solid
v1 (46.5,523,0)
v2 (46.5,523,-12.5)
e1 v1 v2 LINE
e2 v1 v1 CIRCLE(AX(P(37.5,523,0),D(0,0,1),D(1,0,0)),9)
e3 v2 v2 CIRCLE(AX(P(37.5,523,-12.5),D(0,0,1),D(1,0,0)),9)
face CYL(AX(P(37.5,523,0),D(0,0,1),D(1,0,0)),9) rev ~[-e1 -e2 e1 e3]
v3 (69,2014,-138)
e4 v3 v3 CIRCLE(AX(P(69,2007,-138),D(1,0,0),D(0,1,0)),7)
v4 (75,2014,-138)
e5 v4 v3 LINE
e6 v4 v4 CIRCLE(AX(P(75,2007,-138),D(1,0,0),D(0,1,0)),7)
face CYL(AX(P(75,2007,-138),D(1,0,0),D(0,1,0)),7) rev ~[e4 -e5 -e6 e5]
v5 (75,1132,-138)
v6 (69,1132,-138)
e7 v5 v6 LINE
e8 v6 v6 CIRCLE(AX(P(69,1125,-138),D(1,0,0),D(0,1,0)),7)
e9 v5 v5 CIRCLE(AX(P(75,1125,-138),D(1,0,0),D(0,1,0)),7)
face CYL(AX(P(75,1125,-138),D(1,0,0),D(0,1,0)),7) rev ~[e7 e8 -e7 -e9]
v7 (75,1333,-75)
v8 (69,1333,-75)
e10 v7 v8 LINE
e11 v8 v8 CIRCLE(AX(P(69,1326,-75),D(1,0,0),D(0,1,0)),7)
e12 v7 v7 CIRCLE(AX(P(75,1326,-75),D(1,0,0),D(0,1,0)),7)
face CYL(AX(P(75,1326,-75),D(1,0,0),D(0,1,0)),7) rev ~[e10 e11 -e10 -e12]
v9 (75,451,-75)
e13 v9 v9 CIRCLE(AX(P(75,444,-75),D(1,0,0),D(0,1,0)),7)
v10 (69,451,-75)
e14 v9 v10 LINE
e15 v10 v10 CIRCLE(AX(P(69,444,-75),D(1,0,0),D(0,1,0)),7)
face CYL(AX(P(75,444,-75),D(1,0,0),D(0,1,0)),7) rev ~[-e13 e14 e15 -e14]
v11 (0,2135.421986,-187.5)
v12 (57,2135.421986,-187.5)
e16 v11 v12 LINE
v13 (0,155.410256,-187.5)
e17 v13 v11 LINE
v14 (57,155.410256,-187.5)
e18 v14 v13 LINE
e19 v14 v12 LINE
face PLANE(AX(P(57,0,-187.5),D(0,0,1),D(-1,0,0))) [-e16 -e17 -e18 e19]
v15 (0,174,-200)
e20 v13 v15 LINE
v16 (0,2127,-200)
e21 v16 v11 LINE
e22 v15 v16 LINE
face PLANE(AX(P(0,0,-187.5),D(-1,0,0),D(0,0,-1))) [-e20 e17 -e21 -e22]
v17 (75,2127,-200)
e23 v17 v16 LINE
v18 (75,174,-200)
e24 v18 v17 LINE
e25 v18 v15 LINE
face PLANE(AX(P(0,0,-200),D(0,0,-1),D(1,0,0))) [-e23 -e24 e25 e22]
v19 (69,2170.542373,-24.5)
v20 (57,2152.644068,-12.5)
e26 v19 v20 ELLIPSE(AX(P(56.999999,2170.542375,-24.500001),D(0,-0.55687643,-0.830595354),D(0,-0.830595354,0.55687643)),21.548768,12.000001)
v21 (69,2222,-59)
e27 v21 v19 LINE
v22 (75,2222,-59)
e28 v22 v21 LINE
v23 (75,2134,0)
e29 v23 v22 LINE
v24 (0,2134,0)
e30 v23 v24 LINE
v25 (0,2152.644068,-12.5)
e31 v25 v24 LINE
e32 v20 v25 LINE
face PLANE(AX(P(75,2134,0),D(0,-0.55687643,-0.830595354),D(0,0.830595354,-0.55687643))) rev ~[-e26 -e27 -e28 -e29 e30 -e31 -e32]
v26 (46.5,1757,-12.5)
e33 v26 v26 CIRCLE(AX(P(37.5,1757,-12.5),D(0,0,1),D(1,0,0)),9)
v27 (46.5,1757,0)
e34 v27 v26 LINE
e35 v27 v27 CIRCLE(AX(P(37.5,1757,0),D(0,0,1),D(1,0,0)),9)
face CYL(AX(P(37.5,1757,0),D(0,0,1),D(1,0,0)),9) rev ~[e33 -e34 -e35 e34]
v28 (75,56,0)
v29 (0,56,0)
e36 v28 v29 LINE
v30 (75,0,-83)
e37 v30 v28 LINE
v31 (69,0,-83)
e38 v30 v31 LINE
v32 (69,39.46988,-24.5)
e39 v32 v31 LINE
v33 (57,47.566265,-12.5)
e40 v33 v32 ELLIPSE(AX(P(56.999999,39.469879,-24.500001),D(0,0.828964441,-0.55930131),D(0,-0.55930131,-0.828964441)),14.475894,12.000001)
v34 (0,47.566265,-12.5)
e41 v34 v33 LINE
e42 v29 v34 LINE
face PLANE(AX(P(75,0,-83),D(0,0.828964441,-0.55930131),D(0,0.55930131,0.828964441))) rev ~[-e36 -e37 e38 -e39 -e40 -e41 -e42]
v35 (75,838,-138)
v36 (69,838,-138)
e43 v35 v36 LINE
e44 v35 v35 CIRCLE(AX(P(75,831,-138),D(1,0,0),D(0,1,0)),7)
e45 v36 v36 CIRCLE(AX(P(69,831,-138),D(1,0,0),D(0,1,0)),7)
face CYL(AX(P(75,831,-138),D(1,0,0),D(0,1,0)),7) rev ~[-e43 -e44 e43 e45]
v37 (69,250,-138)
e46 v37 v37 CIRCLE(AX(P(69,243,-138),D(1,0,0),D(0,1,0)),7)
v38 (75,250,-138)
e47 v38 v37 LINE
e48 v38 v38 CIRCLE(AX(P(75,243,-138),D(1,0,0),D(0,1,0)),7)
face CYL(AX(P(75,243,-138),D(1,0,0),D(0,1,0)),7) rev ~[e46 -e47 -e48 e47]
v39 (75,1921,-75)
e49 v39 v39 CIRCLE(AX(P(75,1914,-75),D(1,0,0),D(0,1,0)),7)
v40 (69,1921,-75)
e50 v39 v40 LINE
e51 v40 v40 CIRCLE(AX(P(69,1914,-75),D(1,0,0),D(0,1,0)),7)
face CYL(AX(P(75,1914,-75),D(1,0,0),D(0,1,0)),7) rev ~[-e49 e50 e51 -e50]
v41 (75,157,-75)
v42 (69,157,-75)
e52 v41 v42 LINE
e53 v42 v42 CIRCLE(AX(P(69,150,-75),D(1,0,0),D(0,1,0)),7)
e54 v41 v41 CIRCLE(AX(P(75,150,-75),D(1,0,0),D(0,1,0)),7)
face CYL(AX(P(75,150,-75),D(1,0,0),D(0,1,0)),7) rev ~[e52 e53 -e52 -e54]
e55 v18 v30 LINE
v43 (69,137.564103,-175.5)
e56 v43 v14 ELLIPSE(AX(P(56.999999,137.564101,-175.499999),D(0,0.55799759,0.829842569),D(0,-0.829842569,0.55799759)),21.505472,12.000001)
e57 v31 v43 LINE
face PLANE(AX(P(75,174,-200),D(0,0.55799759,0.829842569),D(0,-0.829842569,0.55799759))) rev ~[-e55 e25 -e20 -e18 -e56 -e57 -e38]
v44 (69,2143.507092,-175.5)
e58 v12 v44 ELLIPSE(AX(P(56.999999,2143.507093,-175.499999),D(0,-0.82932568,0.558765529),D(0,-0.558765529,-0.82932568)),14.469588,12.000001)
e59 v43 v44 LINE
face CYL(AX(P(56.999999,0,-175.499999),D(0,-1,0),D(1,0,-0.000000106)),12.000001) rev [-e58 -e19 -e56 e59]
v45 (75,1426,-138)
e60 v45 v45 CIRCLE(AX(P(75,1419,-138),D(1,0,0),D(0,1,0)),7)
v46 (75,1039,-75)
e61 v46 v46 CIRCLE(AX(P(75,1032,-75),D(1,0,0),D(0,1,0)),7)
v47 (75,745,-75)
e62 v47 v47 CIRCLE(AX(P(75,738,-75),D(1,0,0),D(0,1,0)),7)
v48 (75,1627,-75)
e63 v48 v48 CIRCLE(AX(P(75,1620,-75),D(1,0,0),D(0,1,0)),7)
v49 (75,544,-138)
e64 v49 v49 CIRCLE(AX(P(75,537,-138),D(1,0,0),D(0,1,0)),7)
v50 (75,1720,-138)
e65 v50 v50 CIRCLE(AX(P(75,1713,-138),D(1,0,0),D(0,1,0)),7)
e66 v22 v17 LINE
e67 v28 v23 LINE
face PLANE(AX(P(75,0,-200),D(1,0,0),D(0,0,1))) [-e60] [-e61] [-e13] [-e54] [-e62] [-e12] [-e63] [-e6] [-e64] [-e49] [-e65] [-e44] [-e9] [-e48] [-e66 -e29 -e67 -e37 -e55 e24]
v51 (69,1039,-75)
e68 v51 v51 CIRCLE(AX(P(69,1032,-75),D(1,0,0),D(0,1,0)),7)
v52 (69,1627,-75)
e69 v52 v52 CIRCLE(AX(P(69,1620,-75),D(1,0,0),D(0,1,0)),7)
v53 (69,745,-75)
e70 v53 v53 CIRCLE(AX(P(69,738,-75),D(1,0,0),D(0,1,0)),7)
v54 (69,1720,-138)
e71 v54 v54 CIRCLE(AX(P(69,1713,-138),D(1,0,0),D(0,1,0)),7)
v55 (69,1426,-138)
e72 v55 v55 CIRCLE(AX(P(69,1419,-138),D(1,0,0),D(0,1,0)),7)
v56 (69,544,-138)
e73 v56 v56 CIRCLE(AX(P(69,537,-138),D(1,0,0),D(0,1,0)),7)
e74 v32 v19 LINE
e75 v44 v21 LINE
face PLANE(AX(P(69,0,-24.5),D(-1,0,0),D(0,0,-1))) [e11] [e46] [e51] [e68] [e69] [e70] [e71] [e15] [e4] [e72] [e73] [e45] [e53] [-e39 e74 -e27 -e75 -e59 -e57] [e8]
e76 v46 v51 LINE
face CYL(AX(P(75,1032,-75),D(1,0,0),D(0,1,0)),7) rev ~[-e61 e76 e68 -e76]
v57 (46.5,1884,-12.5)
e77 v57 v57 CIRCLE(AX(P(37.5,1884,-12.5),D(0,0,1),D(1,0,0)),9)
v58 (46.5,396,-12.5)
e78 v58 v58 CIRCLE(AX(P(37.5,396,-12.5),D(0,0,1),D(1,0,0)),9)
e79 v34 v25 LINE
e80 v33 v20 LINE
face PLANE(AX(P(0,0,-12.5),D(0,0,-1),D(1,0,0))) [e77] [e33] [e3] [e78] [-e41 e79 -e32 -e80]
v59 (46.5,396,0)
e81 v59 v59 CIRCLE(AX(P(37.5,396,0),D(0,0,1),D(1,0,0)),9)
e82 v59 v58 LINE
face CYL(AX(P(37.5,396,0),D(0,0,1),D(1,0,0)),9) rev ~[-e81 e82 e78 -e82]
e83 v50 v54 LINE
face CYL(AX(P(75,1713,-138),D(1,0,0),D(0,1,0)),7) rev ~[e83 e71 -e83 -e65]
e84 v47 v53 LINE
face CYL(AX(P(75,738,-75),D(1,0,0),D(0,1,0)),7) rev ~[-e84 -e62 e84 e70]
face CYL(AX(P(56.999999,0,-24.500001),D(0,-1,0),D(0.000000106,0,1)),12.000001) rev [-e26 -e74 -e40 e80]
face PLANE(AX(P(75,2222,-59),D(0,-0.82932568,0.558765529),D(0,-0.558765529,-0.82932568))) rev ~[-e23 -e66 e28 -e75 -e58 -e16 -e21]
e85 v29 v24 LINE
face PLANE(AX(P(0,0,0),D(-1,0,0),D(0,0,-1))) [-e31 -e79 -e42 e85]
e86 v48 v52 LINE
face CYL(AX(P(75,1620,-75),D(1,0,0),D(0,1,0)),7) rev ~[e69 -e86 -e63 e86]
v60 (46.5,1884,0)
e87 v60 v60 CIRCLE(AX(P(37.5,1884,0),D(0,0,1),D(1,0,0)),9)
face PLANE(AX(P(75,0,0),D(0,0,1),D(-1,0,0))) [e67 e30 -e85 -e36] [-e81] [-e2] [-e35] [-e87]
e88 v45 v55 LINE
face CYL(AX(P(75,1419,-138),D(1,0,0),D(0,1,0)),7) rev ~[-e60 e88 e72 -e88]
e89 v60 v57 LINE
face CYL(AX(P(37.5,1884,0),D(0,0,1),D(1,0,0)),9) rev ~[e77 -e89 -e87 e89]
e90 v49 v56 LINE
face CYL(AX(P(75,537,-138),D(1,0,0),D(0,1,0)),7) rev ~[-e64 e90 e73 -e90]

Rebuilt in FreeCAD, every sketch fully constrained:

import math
import FreeCAD as App
import Part
import Sketcher
Q = App.Units.Quantity


def add_polygon(sketch, points):
    """Adds a closed chain of lines whose ends are joined by coincident constraints."""
    first, n = sketch.GeometryCount, len(points)
    for a, b in zip(points, points[1:] + points[:1]):
        sketch.addGeometry(Part.LineSegment(App.Vector(*a, 0), App.Vector(*b, 0)), False)
    for i in range(n):
        sketch.addConstraint(Sketcher.Constraint("Coincident", first + i, 2, first + (i + 1) % n, 1))

doc = App.newDocument("Part")
body = doc.addObject("PartDesign::Body", "Body")

# Sketch on XZ plane
sketch1 = body.newObject("Sketcher::SketchObject", "Sketch")
sketch1.AttachmentSupport = (doc.getObject("XZ_Plane"), [""])
sketch1.MapMode = "FlatFace"
sketch1.addGeometry(Part.LineSegment(App.Vector(75, 0, 0), App.Vector(0, 0, 0)), False)
sketch1.addGeometry(Part.LineSegment(App.Vector(0, 0, 0), App.Vector(0, -12.5, 0)), False)
sketch1.addGeometry(Part.LineSegment(App.Vector(0, -12.5, 0), App.Vector(57, -12.5, 0)), False)
sketch1.addGeometry(Part.ArcOfCircle(Part.Circle(App.Vector(56.999999, -24.500001, 0), App.Vector(0, 0, 1), 12.000001), math.radians(0.000006), math.radians(89.999994)), False)
sketch1.addGeometry(Part.LineSegment(App.Vector(69, -24.5, 0), App.Vector(69, -175.5, 0)), False)
sketch1.addGeometry(Part.ArcOfCircle(Part.Circle(App.Vector(56.999999, -175.499999, 0), App.Vector(0, 0, 1), 12.000001), math.radians(-89.999994), math.radians(-0.000006)), False)
sketch1.addGeometry(Part.LineSegment(App.Vector(57, -187.5, 0), App.Vector(0, -187.5, 0)), False)
sketch1.addGeometry(Part.LineSegment(App.Vector(0, -187.5, 0), App.Vector(0, -200, 0)), False)
sketch1.addGeometry(Part.LineSegment(App.Vector(0, -200, 0), App.Vector(75, -200, 0)), False)
sketch1.addGeometry(Part.LineSegment(App.Vector(75, -200, 0), App.Vector(75, 0, 0)), False)
sketch1.addConstraint(Sketcher.Constraint("Coincident", 0, 2, 1, 1))
sketch1.addConstraint(Sketcher.Constraint("Coincident", 1, 2, 2, 1))
sketch1.addConstraint(Sketcher.Constraint("Tangent", 2, 2, 3, 2))
sketch1.addConstraint(Sketcher.Constraint("Tangent", 3, 1, 4, 1))
sketch1.addConstraint(Sketcher.Constraint("Tangent", 4, 2, 5, 2))
sketch1.addConstraint(Sketcher.Constraint("Tangent", 5, 1, 6, 1))
sketch1.addConstraint(Sketcher.Constraint("Coincident", 6, 2, 7, 1))
sketch1.addConstraint(Sketcher.Constraint("Coincident", 7, 2, 8, 1))
sketch1.addConstraint(Sketcher.Constraint("Coincident", 8, 2, 9, 1))
sketch1.addConstraint(Sketcher.Constraint("Coincident", 9, 2, 0, 1))
sketch1.addConstraint(Sketcher.Constraint("Horizontal", 0))
sketch1.addConstraint(Sketcher.Constraint("Vertical", 1))
sketch1.addConstraint(Sketcher.Constraint("Horizontal", 2))
sketch1.addConstraint(Sketcher.Constraint("Vertical", 4))
sketch1.addConstraint(Sketcher.Constraint("Horizontal", 6))
sketch1.addConstraint(Sketcher.Constraint("Vertical", 7))
sketch1.addConstraint(Sketcher.Constraint("Horizontal", 8))
sketch1.addConstraint(Sketcher.Constraint("Vertical", 9))
sketch1.addConstraint(Sketcher.Constraint("Coincident", 0, 2, -1, 1))
sketch1.addConstraint(Sketcher.Constraint("Equal", 3, 5))
sketch1.addConstraint(Sketcher.Constraint("PointOnObject", 6, 2, -2))
sketch1.addConstraint(Sketcher.Constraint("Equal", 1, 7))
sketch1.addConstraint(Sketcher.Constraint("Radius", 3, Q("12.000001 mm")))
sketch1.addConstraint(Sketcher.Constraint("DistanceX", 0, 2, 0, 1, Q("75 mm")))
sketch1.addConstraint(Sketcher.Constraint("DistanceX", 2, 1, 2, 2, Q("57 mm")))
sketch1.addConstraint(Sketcher.Constraint("DistanceY", 4, 2, 4, 1, Q("151 mm")))
sketch1.addConstraint(Sketcher.Constraint("DistanceY", 9, 1, 9, 2, Q("200 mm")))
pad1 = body.newObject("PartDesign::Pad", "Pad")
pad1.Profile = sketch1
pad1.Length = 2222
pad1.Reversed = True

# Sketch on YZ plane
sketch2 = body.newObject("Sketcher::SketchObject", "Sketch001")
sketch2.AttachmentSupport = (doc.getObject("YZ_Plane"), [""])
sketch2.MapMode = "FlatFace"
sketch2.AttachmentOffset = App.Placement(App.Vector(0, 0, 75), App.Rotation())
add_polygon(sketch2, [(174, -200), (0, -83), (0, -200)])  # lines 0-2
add_polygon(sketch2, [(56, 0), (0, 0), (0, -83)])  # lines 3-5
add_polygon(sketch2, [(2222, -59), (2127, -200), (2222, -200)])  # lines 6-8
add_polygon(sketch2, [(2134, 0), (2222, -59), (2222, 0)])  # lines 9-11
sketch2.addGeometry(Part.Circle(App.Vector(444, -75, 0), App.Vector(0, 0, 1), 7), False)  # 12
sketch2.addGeometry(Part.Circle(App.Vector(537, -138, 0), App.Vector(0, 0, 1), 7), False)  # 13
sketch2.addGeometry(Part.Circle(App.Vector(243, -138, 0), App.Vector(0, 0, 1), 7), False)  # 14
sketch2.addGeometry(Part.Circle(App.Vector(150, -75, 0), App.Vector(0, 0, 1), 7), False)  # 15
sketch2.addGeometry(Part.Circle(App.Vector(738, -75, 0), App.Vector(0, 0, 1), 7), False)  # 16
sketch2.addGeometry(Part.Circle(App.Vector(831, -138, 0), App.Vector(0, 0, 1), 7), False)  # 17
sketch2.addGeometry(Part.Circle(App.Vector(1032, -75, 0), App.Vector(0, 0, 1), 7), False)  # 18
sketch2.addGeometry(Part.Circle(App.Vector(1125, -138, 0), App.Vector(0, 0, 1), 7), False)  # 19
sketch2.addGeometry(Part.Circle(App.Vector(1326, -75, 0), App.Vector(0, 0, 1), 7), False)  # 20
sketch2.addGeometry(Part.Circle(App.Vector(1419, -138, 0), App.Vector(0, 0, 1), 7), False)  # 21
sketch2.addGeometry(Part.Circle(App.Vector(1620, -75, 0), App.Vector(0, 0, 1), 7), False)  # 22
sketch2.addGeometry(Part.Circle(App.Vector(1713, -138, 0), App.Vector(0, 0, 1), 7), False)  # 23
sketch2.addGeometry(Part.Circle(App.Vector(2007, -138, 0), App.Vector(0, 0, 1), 7), False)  # 24
sketch2.addGeometry(Part.Circle(App.Vector(1914, -75, 0), App.Vector(0, 0, 1), 7), False)  # 25
sketch2.addConstraint(Sketcher.Constraint("Vertical", 1))
sketch2.addConstraint(Sketcher.Constraint("Horizontal", 2))
sketch2.addConstraint(Sketcher.Constraint("Horizontal", 3))
sketch2.addConstraint(Sketcher.Constraint("Vertical", 4))
sketch2.addConstraint(Sketcher.Constraint("Horizontal", 7))
sketch2.addConstraint(Sketcher.Constraint("Vertical", 8))
sketch2.addConstraint(Sketcher.Constraint("Vertical", 10))
sketch2.addConstraint(Sketcher.Constraint("Horizontal", 11))
sketch2.addConstraint(Sketcher.Constraint("Coincident", 3, 2, -1, 1))
sketch2.addConstraint(Sketcher.Constraint("Coincident", 4, 2, 0, 2))
sketch2.addConstraint(Sketcher.Constraint("Coincident", 9, 2, 8, 2))
sketch2.addConstraint(Sketcher.Constraint("Equal", 12, 13))
sketch2.addConstraint(Sketcher.Constraint("Equal", 13, 14))
sketch2.addConstraint(Sketcher.Constraint("Equal", 14, 15))
sketch2.addConstraint(Sketcher.Constraint("Equal", 15, 16))
sketch2.addConstraint(Sketcher.Constraint("Equal", 16, 17))
sketch2.addConstraint(Sketcher.Constraint("Equal", 17, 18))
sketch2.addConstraint(Sketcher.Constraint("Equal", 18, 19))
sketch2.addConstraint(Sketcher.Constraint("Equal", 19, 20))
sketch2.addConstraint(Sketcher.Constraint("Equal", 20, 21))
sketch2.addConstraint(Sketcher.Constraint("Equal", 21, 22))
sketch2.addConstraint(Sketcher.Constraint("Equal", 22, 23))
sketch2.addConstraint(Sketcher.Constraint("Equal", 23, 24))
sketch2.addConstraint(Sketcher.Constraint("Equal", 24, 25))
sketch2.addConstraint(Sketcher.Constraint("PointOnObject", 10, 2, -1))
sketch2.addConstraint(Sketcher.Constraint("Horizontal", 13, 3, 14, 3))
sketch2.addConstraint(Sketcher.Constraint("Horizontal", 12, 3, 15, 3))
sketch2.addConstraint(Sketcher.Constraint("Horizontal", 15, 3, 16, 3))
sketch2.addConstraint(Sketcher.Constraint("Horizontal", 14, 3, 17, 3))
sketch2.addConstraint(Sketcher.Constraint("Horizontal", 16, 3, 18, 3))
sketch2.addConstraint(Sketcher.Constraint("Horizontal", 17, 3, 19, 3))
sketch2.addConstraint(Sketcher.Constraint("Horizontal", 18, 3, 20, 3))
sketch2.addConstraint(Sketcher.Constraint("Horizontal", 19, 3, 21, 3))
sketch2.addConstraint(Sketcher.Constraint("Horizontal", 20, 3, 22, 3))
sketch2.addConstraint(Sketcher.Constraint("Horizontal", 21, 3, 23, 3))
sketch2.addConstraint(Sketcher.Constraint("Horizontal", 23, 3, 24, 3))
sketch2.addConstraint(Sketcher.Constraint("Horizontal", 22, 3, 25, 3))
sketch2.addConstraint(Sketcher.Constraint("Horizontal", 2, 2, 6, 2))
sketch2.addConstraint(Sketcher.Constraint("Diameter", 12, Q("14 mm")))
sketch2.addConstraint(Sketcher.Constraint("DistanceX", 2, 1, 2, 2, Q("174 mm")))
sketch2.addConstraint(Sketcher.Constraint("DistanceX", 3, 2, 3, 1, Q("56 mm")))
sketch2.addConstraint(Sketcher.Constraint("DistanceX", 7, 1, 7, 2, Q("95 mm")))
sketch2.addConstraint(Sketcher.Constraint("DistanceX", 11, 2, 11, 1, Q("88 mm")))
sketch2.addConstraint(Sketcher.Constraint("DistanceY", 1, 2, 1, 1, Q("117 mm")))
sketch2.addConstraint(Sketcher.Constraint("DistanceY", 4, 2, 4, 1, Q("83 mm")))
sketch2.addConstraint(Sketcher.Constraint("DistanceY", 8, 1, 8, 2, Q("141 mm")))
sketch2.addConstraint(Sketcher.Constraint("DistanceX", -1, 1, 12, 3, Q("444 mm")))
sketch2.addConstraint(Sketcher.Constraint("DistanceY", 12, 3, -1, 1, Q("75 mm")))
sketch2.addConstraint(Sketcher.Constraint("DistanceX", -1, 1, 13, 3, Q("537 mm")))
sketch2.addConstraint(Sketcher.Constraint("DistanceY", 13, 3, -1, 1, Q("138 mm")))
sketch2.addConstraint(Sketcher.Constraint("DistanceX", -1, 1, 14, 3, Q("243 mm")))
sketch2.addConstraint(Sketcher.Constraint("DistanceX", -1, 1, 15, 3, Q("150 mm")))
sketch2.addConstraint(Sketcher.Constraint("DistanceX", -1, 1, 16, 3, Q("738 mm")))
sketch2.addConstraint(Sketcher.Constraint("DistanceX", -1, 1, 17, 3, Q("831 mm")))
sketch2.addConstraint(Sketcher.Constraint("DistanceX", -1, 1, 18, 3, Q("1032 mm")))
sketch2.addConstraint(Sketcher.Constraint("DistanceX", -1, 1, 19, 3, Q("1125 mm")))
sketch2.addConstraint(Sketcher.Constraint("DistanceX", -1, 1, 20, 3, Q("1326 mm")))
sketch2.addConstraint(Sketcher.Constraint("DistanceX", -1, 1, 21, 3, Q("1419 mm")))
sketch2.addConstraint(Sketcher.Constraint("DistanceX", -1, 1, 22, 3, Q("1620 mm")))
sketch2.addConstraint(Sketcher.Constraint("DistanceX", -1, 1, 23, 3, Q("1713 mm")))
sketch2.addConstraint(Sketcher.Constraint("DistanceX", -1, 1, 24, 3, Q("2007 mm")))
sketch2.addConstraint(Sketcher.Constraint("DistanceX", -1, 1, 25, 3, Q("1914 mm")))
sketch2.addConstraint(Sketcher.Constraint("DistanceX", -1, 1, 6, 2, Q("2127 mm")))
pocket1 = body.newObject("PartDesign::Pocket", "Pocket")
pocket1.Profile = sketch2
pocket1.Type = "ThroughAll"

# Sketch on XY plane
sketch3 = body.newObject("Sketcher::SketchObject", "Sketch002")
sketch3.AttachmentSupport = (doc.getObject("XY_Plane"), [""])
sketch3.MapMode = "FlatFace"
sketch3.addGeometry(Part.Circle(App.Vector(37.5, 523, 0), App.Vector(0, 0, 1), 9), False)
sketch3.addGeometry(Part.Circle(App.Vector(37.5, 396, 0), App.Vector(0, 0, 1), 9), False)
sketch3.addGeometry(Part.Circle(App.Vector(37.5, 1757, 0), App.Vector(0, 0, 1), 9), False)
sketch3.addGeometry(Part.Circle(App.Vector(37.5, 1884, 0), App.Vector(0, 0, 1), 9), False)
sketch3.addConstraint(Sketcher.Constraint("Equal", 0, 1))
sketch3.addConstraint(Sketcher.Constraint("Equal", 1, 2))
sketch3.addConstraint(Sketcher.Constraint("Equal", 2, 3))
sketch3.addConstraint(Sketcher.Constraint("Vertical", 0, 3, 1, 3))
sketch3.addConstraint(Sketcher.Constraint("Vertical", 1, 3, 2, 3))
sketch3.addConstraint(Sketcher.Constraint("Vertical", 2, 3, 3, 3))
sketch3.addConstraint(Sketcher.Constraint("Diameter", 0, Q("18 mm")))
sketch3.addConstraint(Sketcher.Constraint("DistanceY", -1, 1, 0, 3, Q("523 mm")))
sketch3.addConstraint(Sketcher.Constraint("DistanceY", -1, 1, 1, 3, Q("396 mm")))
sketch3.addConstraint(Sketcher.Constraint("DistanceY", -1, 1, 2, 3, Q("1757 mm")))
sketch3.addConstraint(Sketcher.Constraint("DistanceY", -1, 1, 3, 3, Q("1884 mm")))
sketch3.addConstraint(Sketcher.Constraint("DistanceX", -1, 1, 0, 3, Q("37.5 mm")))
pocket2 = body.newObject("PartDesign::Pocket", "Pocket001")
pocket2.Profile = sketch3
pocket2.Length = 25

doc.recompute()
